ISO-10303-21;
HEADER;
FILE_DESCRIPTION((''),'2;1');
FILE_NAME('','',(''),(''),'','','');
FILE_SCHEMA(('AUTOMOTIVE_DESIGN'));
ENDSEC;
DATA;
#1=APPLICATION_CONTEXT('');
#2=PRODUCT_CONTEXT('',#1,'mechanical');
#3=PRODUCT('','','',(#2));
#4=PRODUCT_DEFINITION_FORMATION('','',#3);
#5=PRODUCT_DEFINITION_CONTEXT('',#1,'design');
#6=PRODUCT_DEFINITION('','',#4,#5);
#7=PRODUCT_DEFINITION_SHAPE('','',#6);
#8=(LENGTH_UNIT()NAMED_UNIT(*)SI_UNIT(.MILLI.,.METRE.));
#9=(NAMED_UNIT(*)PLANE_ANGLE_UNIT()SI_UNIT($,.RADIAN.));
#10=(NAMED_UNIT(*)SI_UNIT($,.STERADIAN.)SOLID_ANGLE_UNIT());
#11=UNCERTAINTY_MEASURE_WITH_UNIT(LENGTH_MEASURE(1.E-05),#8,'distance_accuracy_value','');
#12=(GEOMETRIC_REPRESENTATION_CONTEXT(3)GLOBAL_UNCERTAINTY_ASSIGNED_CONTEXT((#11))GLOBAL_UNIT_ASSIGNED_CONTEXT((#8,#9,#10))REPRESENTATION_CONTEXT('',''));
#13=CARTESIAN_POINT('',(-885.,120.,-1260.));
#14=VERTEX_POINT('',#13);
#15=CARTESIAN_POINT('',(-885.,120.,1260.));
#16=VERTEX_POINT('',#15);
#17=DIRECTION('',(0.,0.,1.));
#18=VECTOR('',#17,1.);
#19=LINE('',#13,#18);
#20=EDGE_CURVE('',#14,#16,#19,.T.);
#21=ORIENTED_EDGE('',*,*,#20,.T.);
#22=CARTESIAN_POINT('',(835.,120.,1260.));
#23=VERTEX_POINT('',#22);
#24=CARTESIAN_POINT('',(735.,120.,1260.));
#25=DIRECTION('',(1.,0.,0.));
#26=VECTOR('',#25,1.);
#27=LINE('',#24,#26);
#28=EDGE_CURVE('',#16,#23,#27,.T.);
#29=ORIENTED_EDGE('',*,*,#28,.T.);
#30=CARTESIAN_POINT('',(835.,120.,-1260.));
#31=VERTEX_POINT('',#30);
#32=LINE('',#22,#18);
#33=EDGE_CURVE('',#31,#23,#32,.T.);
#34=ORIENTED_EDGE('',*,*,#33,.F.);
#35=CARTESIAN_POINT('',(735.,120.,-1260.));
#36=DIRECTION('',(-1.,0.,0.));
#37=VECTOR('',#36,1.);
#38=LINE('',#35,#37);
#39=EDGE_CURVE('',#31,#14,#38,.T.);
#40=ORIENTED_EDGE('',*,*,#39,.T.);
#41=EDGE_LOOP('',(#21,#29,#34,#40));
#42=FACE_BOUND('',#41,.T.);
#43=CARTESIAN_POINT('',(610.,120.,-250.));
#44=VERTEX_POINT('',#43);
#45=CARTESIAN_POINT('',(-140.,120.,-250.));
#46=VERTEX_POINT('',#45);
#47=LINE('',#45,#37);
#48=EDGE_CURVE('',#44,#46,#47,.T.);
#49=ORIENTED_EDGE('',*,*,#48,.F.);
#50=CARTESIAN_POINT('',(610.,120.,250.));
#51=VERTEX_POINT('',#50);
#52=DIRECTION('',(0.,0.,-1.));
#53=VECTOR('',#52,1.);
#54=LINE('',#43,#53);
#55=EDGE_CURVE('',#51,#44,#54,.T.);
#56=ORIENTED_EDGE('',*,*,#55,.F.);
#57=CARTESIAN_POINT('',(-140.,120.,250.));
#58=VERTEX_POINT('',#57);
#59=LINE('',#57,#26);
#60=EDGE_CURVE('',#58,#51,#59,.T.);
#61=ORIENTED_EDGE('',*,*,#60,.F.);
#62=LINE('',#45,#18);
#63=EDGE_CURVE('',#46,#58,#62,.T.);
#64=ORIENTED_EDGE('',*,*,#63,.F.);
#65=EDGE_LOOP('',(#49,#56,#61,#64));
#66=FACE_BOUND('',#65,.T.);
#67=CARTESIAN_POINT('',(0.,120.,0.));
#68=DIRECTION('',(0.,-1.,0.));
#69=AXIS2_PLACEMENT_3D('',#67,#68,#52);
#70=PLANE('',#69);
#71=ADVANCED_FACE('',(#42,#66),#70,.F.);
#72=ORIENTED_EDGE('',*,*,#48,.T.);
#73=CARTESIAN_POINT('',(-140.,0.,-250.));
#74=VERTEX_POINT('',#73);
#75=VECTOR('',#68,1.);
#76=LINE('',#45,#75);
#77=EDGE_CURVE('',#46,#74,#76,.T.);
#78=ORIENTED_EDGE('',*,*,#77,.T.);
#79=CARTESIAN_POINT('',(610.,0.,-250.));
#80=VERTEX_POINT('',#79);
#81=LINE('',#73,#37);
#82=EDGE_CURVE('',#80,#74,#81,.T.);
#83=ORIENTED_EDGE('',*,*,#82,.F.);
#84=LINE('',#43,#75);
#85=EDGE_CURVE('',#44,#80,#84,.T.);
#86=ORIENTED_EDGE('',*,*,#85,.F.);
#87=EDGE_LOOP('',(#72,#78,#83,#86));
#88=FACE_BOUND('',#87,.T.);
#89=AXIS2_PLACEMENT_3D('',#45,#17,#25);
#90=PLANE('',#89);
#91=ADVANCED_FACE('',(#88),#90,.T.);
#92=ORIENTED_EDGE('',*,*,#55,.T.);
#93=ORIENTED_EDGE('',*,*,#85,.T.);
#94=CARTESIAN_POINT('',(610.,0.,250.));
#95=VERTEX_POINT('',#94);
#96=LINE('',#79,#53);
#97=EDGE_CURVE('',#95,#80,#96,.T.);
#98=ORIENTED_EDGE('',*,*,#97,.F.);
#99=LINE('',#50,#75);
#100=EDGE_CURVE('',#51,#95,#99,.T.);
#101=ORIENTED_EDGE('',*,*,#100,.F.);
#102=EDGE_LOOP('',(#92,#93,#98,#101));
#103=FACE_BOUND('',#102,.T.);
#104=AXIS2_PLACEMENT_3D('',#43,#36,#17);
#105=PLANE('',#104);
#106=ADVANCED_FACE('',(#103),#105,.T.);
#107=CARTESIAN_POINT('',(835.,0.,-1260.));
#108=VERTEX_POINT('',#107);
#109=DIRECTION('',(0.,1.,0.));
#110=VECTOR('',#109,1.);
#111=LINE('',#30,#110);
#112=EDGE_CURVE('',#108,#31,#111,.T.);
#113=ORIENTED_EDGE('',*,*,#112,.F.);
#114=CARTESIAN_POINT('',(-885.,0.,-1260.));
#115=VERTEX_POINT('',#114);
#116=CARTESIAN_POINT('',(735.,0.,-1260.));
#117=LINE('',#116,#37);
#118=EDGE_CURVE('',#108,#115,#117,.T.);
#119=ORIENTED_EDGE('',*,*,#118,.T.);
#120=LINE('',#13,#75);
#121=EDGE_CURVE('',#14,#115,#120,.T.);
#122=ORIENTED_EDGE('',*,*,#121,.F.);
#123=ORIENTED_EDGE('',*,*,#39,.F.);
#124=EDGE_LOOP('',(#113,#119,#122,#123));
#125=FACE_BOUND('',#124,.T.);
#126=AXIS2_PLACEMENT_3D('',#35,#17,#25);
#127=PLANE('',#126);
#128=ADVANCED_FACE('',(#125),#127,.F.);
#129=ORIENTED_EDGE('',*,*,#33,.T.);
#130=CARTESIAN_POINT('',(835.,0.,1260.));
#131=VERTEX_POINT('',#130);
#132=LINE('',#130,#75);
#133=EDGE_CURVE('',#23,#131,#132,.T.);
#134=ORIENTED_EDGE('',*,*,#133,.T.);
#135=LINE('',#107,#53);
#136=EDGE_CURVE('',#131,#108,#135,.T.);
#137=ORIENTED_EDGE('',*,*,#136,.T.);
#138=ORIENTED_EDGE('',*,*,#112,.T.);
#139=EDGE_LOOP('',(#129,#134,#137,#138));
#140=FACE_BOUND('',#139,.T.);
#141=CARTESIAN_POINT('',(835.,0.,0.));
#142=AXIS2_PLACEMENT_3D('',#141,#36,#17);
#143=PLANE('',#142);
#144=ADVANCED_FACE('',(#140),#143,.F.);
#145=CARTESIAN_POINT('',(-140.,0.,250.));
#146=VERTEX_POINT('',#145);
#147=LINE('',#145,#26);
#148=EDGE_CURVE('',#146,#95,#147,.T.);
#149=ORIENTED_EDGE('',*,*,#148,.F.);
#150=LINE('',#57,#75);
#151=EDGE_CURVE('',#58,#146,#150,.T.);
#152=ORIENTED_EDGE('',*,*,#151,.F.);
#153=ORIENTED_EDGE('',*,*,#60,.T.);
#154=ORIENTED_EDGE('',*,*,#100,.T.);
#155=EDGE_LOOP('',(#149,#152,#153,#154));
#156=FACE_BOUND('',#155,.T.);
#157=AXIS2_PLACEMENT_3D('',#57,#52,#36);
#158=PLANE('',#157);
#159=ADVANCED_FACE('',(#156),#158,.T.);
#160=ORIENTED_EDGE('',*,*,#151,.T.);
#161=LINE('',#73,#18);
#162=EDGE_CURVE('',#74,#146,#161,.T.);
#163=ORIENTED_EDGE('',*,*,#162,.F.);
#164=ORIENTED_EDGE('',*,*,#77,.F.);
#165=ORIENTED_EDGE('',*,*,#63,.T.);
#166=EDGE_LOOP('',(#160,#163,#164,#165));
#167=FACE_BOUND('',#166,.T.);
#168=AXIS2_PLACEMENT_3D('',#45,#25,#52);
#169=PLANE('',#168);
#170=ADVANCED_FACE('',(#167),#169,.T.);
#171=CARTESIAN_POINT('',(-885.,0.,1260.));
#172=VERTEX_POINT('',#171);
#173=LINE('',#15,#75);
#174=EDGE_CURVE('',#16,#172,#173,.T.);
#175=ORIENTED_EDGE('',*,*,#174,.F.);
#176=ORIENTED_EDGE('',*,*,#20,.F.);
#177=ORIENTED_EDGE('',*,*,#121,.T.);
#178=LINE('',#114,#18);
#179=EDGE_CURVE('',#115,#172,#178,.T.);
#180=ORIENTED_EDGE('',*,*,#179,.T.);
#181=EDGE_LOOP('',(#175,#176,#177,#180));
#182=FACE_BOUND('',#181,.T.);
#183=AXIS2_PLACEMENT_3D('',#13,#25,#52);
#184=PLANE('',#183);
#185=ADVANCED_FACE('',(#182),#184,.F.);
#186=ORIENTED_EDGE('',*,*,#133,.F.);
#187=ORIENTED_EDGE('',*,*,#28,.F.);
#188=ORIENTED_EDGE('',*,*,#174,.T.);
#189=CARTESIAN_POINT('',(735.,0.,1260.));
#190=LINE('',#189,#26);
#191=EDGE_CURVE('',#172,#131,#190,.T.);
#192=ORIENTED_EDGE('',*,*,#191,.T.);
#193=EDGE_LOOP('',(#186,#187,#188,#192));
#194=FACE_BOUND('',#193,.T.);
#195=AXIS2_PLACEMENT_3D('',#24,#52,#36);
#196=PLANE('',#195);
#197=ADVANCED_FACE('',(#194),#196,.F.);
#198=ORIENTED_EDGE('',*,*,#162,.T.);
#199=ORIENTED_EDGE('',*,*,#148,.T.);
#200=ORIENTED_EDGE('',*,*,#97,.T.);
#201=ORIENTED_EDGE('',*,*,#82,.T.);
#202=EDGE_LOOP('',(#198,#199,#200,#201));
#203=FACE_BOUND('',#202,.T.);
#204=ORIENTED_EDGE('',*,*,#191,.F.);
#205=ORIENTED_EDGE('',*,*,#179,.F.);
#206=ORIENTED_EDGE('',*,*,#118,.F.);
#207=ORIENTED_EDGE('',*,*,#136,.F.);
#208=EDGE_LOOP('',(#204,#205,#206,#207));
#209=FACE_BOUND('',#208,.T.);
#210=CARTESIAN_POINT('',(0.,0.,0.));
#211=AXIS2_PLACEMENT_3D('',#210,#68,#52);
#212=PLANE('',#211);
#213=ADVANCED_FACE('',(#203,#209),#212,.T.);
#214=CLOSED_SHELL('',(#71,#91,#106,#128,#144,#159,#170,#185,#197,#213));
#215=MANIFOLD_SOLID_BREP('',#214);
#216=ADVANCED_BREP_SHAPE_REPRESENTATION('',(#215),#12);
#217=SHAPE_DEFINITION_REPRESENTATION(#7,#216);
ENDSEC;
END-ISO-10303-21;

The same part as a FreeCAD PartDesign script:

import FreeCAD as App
import Part
import Sketcher
from FreeCAD import Vector
Q = App.Units.Quantity


def add_polygon(sketch, points):
    """Adds a closed chain of lines whose ends are joined by coincident constraints."""
    first, n = sketch.GeometryCount, len(points)
    for a, b in zip(points, points[1:] + points[:1]):
        sketch.addGeometry(Part.LineSegment(App.Vector(*a, 0), App.Vector(*b, 0)), False)
    for i in range(n):
        sketch.addConstraint(Sketcher.Constraint("Coincident", first + i, 2, first + (i + 1) % n, 1))

doc = App.newDocument("Part")
body = doc.addObject("PartDesign::Body", "Body")

# Sketch on XZ plane
sketch1 = body.newObject("Sketcher::SketchObject", "Sketch")
sketch1.AttachmentSupport = (doc.getObject("XZ_Plane"), [""])
sketch1.MapMode = "FlatFace"
add_polygon(sketch1, [(-885, -1260), (-885, 1260), (735, 1260), (735, -1260)])  # lines 0-3
add_polygon(sketch1, [(610, 250), (-140, 250), (-140, -250), (610, -250)])  # lines 4-7
sketch1.addConstraint([
    Sketcher.Constraint("Vertical", 0),
    Sketcher.Constraint("Horizontal", 1),
    Sketcher.Constraint("Vertical", 2),
    Sketcher.Constraint("Horizontal", 3),
    Sketcher.Constraint("Horizontal", 4),
    Sketcher.Constraint("Vertical", 5),
    Sketcher.Constraint("Horizontal", 6),
    Sketcher.Constraint("Vertical", 7),
    Sketcher.Constraint("DistanceX", 1, 1, 1, 2, Q("1620 mm")),
    Sketcher.Constraint("DistanceX", 4, 2, 4, 1, Q("750 mm")),
    Sketcher.Constraint("DistanceY", 0, 1, 0, 2, Q("2520 mm")),
    Sketcher.Constraint("DistanceY", 5, 2, 5, 1, Q("500 mm")),
    Sketcher.Constraint("DistanceX", 0, 2, -1, 1, Q("885 mm")),
    Sketcher.Constraint("DistanceY", -1, 1, 0, 2, Q("1260 mm")),
    Sketcher.Constraint("DistanceX", 4, 2, -1, 1, Q("140 mm")),
    Sketcher.Constraint("DistanceY", -1, 1, 4, 2, Q("250 mm")),
])
pad1 = body.newObject("PartDesign::Pad", "Pad")
pad1.Profile = sketch1
pad1.Length = 120
pad1.Reversed = True

# Sketch on YZ plane
sketch2 = body.newObject("Sketcher::SketchObject", "Sketch001")
sketch2.AttachmentSupport = (doc.getObject("YZ_Plane"), [""])
sketch2.MapMode = "FlatFace"
sketch2.AttachmentOffset = App.Placement(Vector(0, 0, 735), App.Rotation())
add_polygon(sketch2, [(120, 1260), (0, 1260), (0, -1260), (120, -1260)])  # lines 0-3
sketch2.addConstraint([
    Sketcher.Constraint("Horizontal", 0),
    Sketcher.Constraint("Vertical", 1),
    Sketcher.Constraint("Horizontal", 2),
    Sketcher.Constraint("Vertical", 3),
    Sketcher.Constraint("Symmetric", 0, 2, 1, 2, -1, 1),
    Sketcher.Constraint("DistanceX", 0, 2, 0, 1, Q("120 mm")),
    Sketcher.Constraint("DistanceY", 1, 2, 1, 1, Q("2520 mm")),
])
pad2 = body.newObject("PartDesign::Pad", "Pad001")
pad2.Profile = sketch2
pad2.Length = 100

doc.recompute()
